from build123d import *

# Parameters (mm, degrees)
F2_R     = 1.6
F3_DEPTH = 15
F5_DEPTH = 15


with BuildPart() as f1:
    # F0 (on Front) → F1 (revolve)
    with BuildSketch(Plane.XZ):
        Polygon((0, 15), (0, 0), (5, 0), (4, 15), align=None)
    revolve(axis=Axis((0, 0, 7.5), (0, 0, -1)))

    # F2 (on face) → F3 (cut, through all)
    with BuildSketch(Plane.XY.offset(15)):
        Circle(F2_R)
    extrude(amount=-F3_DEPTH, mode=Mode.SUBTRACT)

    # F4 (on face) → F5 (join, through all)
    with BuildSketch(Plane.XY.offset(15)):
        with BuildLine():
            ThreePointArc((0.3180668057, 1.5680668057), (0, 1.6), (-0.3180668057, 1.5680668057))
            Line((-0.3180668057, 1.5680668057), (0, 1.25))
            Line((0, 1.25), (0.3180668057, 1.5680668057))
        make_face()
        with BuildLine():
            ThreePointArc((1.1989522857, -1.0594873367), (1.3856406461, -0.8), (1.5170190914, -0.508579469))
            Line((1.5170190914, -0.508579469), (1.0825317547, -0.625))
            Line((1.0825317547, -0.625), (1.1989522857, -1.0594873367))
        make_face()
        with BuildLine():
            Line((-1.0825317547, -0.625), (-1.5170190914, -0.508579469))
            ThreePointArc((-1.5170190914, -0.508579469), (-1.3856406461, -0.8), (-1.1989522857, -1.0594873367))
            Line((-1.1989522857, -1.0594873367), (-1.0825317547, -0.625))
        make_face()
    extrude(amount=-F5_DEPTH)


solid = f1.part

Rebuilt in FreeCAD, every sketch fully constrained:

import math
import FreeCAD as App
import Part
import Sketcher

V = App.Vector
Q = App.Units.Quantity

doc = App.newDocument("Part")
params = doc.addObject("Spreadsheet::Sheet", "Params")
for row, (alias, value) in enumerate([
    ("sketch1_width", "5 mm"),
    ("sketch1_width2", "4 mm"),
    ("sketch1_height", "15 mm"),
    ("revolution_angle", "360 deg"),
    ("sketch2_diameter", "3.2 mm"),
    ("sketch3_radius", "1.6 mm"),
    ("pad1_length", "15 mm"),
], start=1):
    params.set(f"A{row}", alias)
    params.set(f"B{row}", "=" + value)
    params.setAlias(f"B{row}", alias)

body = doc.addObject("PartDesign::Body", "Body")

sketch1 = doc.addObject("Sketcher::SketchObject", "Sketch")
body.addObject(sketch1)
sketch1.AttachmentSupport = (doc.XZ_Plane, [""])
sketch1.MapMode = "FlatFace"
sketch1.addGeometry([
    Part.LineSegment(V(0, 15, 0), V(0, 0, 0)),
    Part.LineSegment(V(0, 0, 0), V(5, 0, 0)),
    Part.LineSegment(V(5, 0, 0), V(4, 15, 0)),
    Part.LineSegment(V(4, 15, 0), V(0, 15, 0)),
], False)
sketch1.addConstraint([
    Sketcher.Constraint("Coincident", 0, 2, 1, 1),
    Sketcher.Constraint("Coincident", 1, 2, 2, 1),
    Sketcher.Constraint("Coincident", 2, 2, 3, 1),
    Sketcher.Constraint("Coincident", 3, 2, 0, 1),
    Sketcher.Constraint("Vertical", 0),
    Sketcher.Constraint("Horizontal", 1),
    Sketcher.Constraint("Horizontal", 3),
    Sketcher.Constraint("Coincident", 0, 2, -1, 1),
    Sketcher.Constraint("DistanceX", 1, 1, 1, 2, Q("5 mm")),
    Sketcher.Constraint("DistanceX", 3, 2, 3, 1, Q("4 mm")),
    Sketcher.Constraint("DistanceY", 0, 2, 0, 1, Q("15 mm")),
])
sketch1.setExpression("Constraints[8]", "Params.sketch1_width")
sketch1.setExpression("Constraints[9]", "Params.sketch1_width2")
sketch1.setExpression("Constraints[10]", "Params.sketch1_height")
revolution = doc.addObject("PartDesign::Revolution", "Revolution")
body.addObject(revolution)
revolution.Profile = sketch1
revolution.ReferenceAxis = (sketch1, ["V_Axis"])
revolution.setExpression("Angle", "Params.revolution_angle")

sketch2 = doc.addObject("Sketcher::SketchObject", "Sketch001")
body.addObject(sketch2)
sketch2.AttachmentSupport = (doc.XY_Plane, [""])
sketch2.MapMode = "FlatFace"
sketch2.AttachmentOffset = App.Placement(V(0, 0, 15), App.Rotation())
sketch2.addGeometry(Part.Circle(V(0, 0, 0), V(0, 0, 1), 1.6), False)
sketch2.addConstraint([
    Sketcher.Constraint("Coincident", 0, 3, -1, 1),
    Sketcher.Constraint("Diameter", 0, Q("3.2 mm")),
])
sketch2.setExpression("Constraints[1]", "Params.sketch2_diameter")
pocket1 = doc.addObject("PartDesign::Pocket", "Pocket")
body.addObject(pocket1)
pocket1.Profile = sketch2
pocket1.Type = "ThroughAll"

sketch3 = doc.addObject("Sketcher::SketchObject", "Sketch002")
body.addObject(sketch3)
sketch3.AttachmentSupport = (doc.XY_Plane, [""])
sketch3.MapMode = "FlatFace"
sketch3.AttachmentOffset = App.Placement(V(0, 0, 15), App.Rotation())
sketch3.addGeometry([
    Part.ArcOfCircle(Part.Circle(V(0, 0, 0), V(0, 0, 1), 1.6), math.radians(79), math.radians(101)),
    Part.LineSegment(V(-0.32, 1.57, 0), V(0, 1.25, 0)),
    Part.LineSegment(V(0, 1.25, 0), V(0.32, 1.57, 0)),
    Part.ArcOfCircle(Part.Circle(V(0, 0, 0), V(0, 0, 1), 1.6), math.radians(-41), math.radians(-19)),
    Part.LineSegment(V(1.52, -0.51, 0), V(1.08, -0.62, 0)),
    Part.LineSegment(V(1.08, -0.62, 0), V(1.2, -1.06, 0)),
    Part.LineSegment(V(-1.08, -0.62, 0), V(-1.52, -0.51, 0)),
    Part.ArcOfCircle(Part.Circle(V(0, 0, 0), V(0, 0, 1), 1.6), math.radians(-161), math.radians(-139)),
    Part.LineSegment(V(-1.2, -1.06, 0), V(-1.08, -0.62, 0)),
], False)
sketch3.addConstraint([
    Sketcher.Constraint("Coincident", 0, 2, 1, 1),
    Sketcher.Constraint("Coincident", 1, 2, 2, 1),
    Sketcher.Constraint("Coincident", 2, 2, 0, 1),
    Sketcher.Constraint("Coincident", 3, 2, 4, 1),
    Sketcher.Constraint("Coincident", 4, 2, 5, 1),
    Sketcher.Constraint("Coincident", 5, 2, 3, 1),
    Sketcher.Constraint("Coincident", 6, 2, 7, 1),
    Sketcher.Constraint("Coincident", 7, 2, 8, 1),
    Sketcher.Constraint("Coincident", 8, 2, 6, 1),
    Sketcher.Constraint("Coincident", 0, 3, -1, 1),
    Sketcher.Constraint("Coincident", 3, 3, -1, 1),
    Sketcher.Constraint("Coincident", 7, 3, -1, 1),
    Sketcher.Constraint("Equal", 0, 3),
    Sketcher.Constraint("Equal", 3, 7),
    Sketcher.Constraint("Symmetric", 4, 2, 8, 2, -2),
    Sketcher.Constraint("PointOnObject", 1, 2, -2),
    Sketcher.Constraint("Perpendicular", 1, 2),
    Sketcher.Constraint("Perpendicular", 4, 5),
    Sketcher.Constraint("Perpendicular", 6, 8),
    Sketcher.Constraint("Horizontal", 0, 2, 2, 2),
    Sketcher.Constraint("Horizontal", 3, 2, 6, 2),
    Sketcher.Constraint("Equal", 2, 4),
    Sketcher.Constraint("Equal", 4, 5),
    Sketcher.Constraint("Radius", 0, Q("1.6 mm")),
    Sketcher.Constraint("Angle", 4, Q("-165 deg")),
    Sketcher.Constraint("DistanceY", -1, 1, 1, 2, Q("1.25 mm")),
])
sketch3.setExpression("Constraints[23]", "Params.sketch3_radius")
pad1 = doc.addObject("PartDesign::Pad", "Pad")
body.addObject(pad1)
pad1.Profile = sketch3
pad1.setExpression("Length", "Params.pad1_length")
pad1.Reversed = True

doc.recompute()
